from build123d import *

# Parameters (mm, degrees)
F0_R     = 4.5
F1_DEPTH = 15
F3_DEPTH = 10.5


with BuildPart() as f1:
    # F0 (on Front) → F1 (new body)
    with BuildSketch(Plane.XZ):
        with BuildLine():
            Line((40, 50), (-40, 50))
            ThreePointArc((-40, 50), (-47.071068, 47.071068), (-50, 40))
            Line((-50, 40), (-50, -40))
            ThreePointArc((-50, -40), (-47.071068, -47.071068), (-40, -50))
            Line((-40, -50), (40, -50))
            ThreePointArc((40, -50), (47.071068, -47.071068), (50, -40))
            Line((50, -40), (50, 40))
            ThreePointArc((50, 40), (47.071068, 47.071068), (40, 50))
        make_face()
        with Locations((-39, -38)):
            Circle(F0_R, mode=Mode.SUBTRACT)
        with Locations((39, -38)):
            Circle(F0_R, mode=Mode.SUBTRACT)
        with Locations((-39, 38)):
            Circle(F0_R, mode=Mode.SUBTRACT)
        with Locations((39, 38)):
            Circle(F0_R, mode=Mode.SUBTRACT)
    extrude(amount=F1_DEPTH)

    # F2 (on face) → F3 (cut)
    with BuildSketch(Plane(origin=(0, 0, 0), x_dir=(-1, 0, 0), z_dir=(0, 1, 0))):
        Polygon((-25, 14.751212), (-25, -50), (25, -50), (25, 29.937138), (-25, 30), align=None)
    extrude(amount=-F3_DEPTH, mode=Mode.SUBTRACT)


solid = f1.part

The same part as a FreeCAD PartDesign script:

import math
import FreeCAD as App
import Part
import Sketcher
from FreeCAD import Vector


def add_polygon(sketch, points):
    """Adds a closed chain of lines whose ends are joined by coincident constraints."""
    first, n = sketch.GeometryCount, len(points)
    for a, b in zip(points, points[1:] + points[:1]):
        sketch.addGeometry(Part.LineSegment(App.Vector(*a, 0), App.Vector(*b, 0)), False)
    for i in range(n):
        sketch.addConstraint(Sketcher.Constraint("Coincident", first + i, 2, first + (i + 1) % n, 1))

doc = App.newDocument("Part")
params = doc.addObject("Spreadsheet::Sheet", "Params")
for row, (alias, value) in enumerate([
    ("sketch1_diameter", "9 mm"),
    ("sketch1_radius", "9.999999 mm"),
    ("sketch1_width", "80 mm"),
    ("pad1_length", "15 mm"),
    ("sketch2_width", "50 mm"),
    ("sketch2_height", "80 mm"),
    ("pocket1_length", "10.5 mm"),
], start=1):
    params.set(f"A{row}", alias)
    params.set(f"B{row}", "=" + value)
    params.setAlias(f"B{row}", alias)

body = doc.addObject("PartDesign::Body", "Body")

# Sketch on XZ plane
sketch1 = body.newObject("Sketcher::SketchObject", "Sketch")
sketch1.AttachmentSupport = (doc.getObject("XZ_Plane"), [""])
sketch1.MapMode = "FlatFace"
sketch1.addGeometry([
    Part.LineSegment(Vector(40, 50, 0), Vector(-40, 50, 0)),  # 0
    Part.ArcOfCircle(Part.Circle(Vector(-40, 40, 0), Vector(0, 0, 1), 10), math.radians(90), math.radians(180)),  # 1
    Part.LineSegment(Vector(-50, 40, 0), Vector(-50, -40, 0)),  # 2
    Part.ArcOfCircle(Part.Circle(Vector(-40, -40, 0), Vector(0, 0, 1), 10), math.radians(180), math.radians(270)),  # 3
    Part.LineSegment(Vector(-40, -50, 0), Vector(40, -50, 0)),  # 4
    Part.ArcOfCircle(Part.Circle(Vector(40, -40, 0), Vector(0, 0, 1), 10), math.radians(-90), math.radians(0)),  # 5
    Part.LineSegment(Vector(50, -40, 0), Vector(50, 40, 0)),  # 6
    Part.ArcOfCircle(Part.Circle(Vector(40, 40, 0), Vector(0, 0, 1), 10), math.radians(0), math.radians(90)),  # 7
    Part.Circle(Vector(-39, -38, 0), Vector(0, 0, 1), 4.5),  # 8
    Part.Circle(Vector(39, -38, 0), Vector(0, 0, 1), 4.5),  # 9
    Part.Circle(Vector(-39, 38, 0), Vector(0, 0, 1), 4.5),  # 10
    Part.Circle(Vector(39, 38, 0), Vector(0, 0, 1), 4.5),  # 11
], False)
sketch1.addConstraint([
    Sketcher.Constraint("Tangent", 0, 2, 1, 1),
    Sketcher.Constraint("Tangent", 1, 2, 2, 1),
    Sketcher.Constraint("Tangent", 2, 2, 3, 1),
    Sketcher.Constraint("Tangent", 3, 2, 4, 1),
    Sketcher.Constraint("Tangent", 4, 2, 5, 1),
    Sketcher.Constraint("Tangent", 5, 2, 6, 1),
    Sketcher.Constraint("Tangent", 6, 2, 7, 1),
    Sketcher.Constraint("Tangent", 7, 2, 0, 1),
    Sketcher.Constraint("Horizontal", 0),
    Sketcher.Constraint("Vertical", 2),
    Sketcher.Constraint("Horizontal", 4),
    Sketcher.Constraint("Vertical", 6),
    Sketcher.Constraint("Equal", 1, 3),
    Sketcher.Constraint("Equal", 3, 5),
    Sketcher.Constraint("Equal", 5, 7),
    Sketcher.Constraint("Equal", 8, 9),
    Sketcher.Constraint("Equal", 9, 10),
    Sketcher.Constraint("Equal", 10, 11),
    Sketcher.Constraint("Symmetric", 1, 3, 5, 3, -1, 1),
    Sketcher.Constraint("Symmetric", 9, 3, 10, 3, -1, 1),
    Sketcher.Constraint("Symmetric", 8, 3, 11, 3, -1, 1),
    Sketcher.Constraint("Symmetric", 8, 3, 9, 3, -2),
    Sketcher.Constraint("Equal", 4, 2),
    Sketcher.Constraint("Diameter", 8, 9.0),
    Sketcher.Constraint("Radius", 1, 9.999999),
    Sketcher.Constraint("DistanceX", 0, 2, 0, 1, 80.0),
    Sketcher.Constraint("DistanceX", 8, 3, -1, 1, 39.0),
    Sketcher.Constraint("DistanceY", 8, 3, -1, 1, 38.0),
])
sketch1.setExpression("Constraints[23]", "Params.sketch1_diameter")
sketch1.setExpression("Constraints[24]", "Params.sketch1_radius")
sketch1.setExpression("Constraints[25]", "Params.sketch1_width")
pad1 = body.newObject("PartDesign::Pad", "Pad")
pad1.Profile = sketch1
pad1.setExpression("Length", "Params.pad1_length")

# Sketch on XZ plane
sketch2 = body.newObject("Sketcher::SketchObject", "Sketch001")
sketch2.AttachmentSupport = (doc.getObject("XZ_Plane"), [""])
sketch2.MapMode = "FlatFace"
add_polygon(sketch2, [(25, -50), (-25, -50), (-25, 30), (25, 30)])  # lines 0-3
sketch2.addConstraint([
    Sketcher.Constraint("Horizontal", 0),
    Sketcher.Constraint("Vertical", 1),
    Sketcher.Constraint("Vertical", 3),
    Sketcher.Constraint("DistanceX", 0, 2, 0, 1, 50.0),
    Sketcher.Constraint("DistanceY", 3, 2, 3, 1, 80.0),
    Sketcher.Constraint("DistanceX", 0, 2, -1, 1, 25.0),
    Sketcher.Constraint("DistanceY", 0, 2, -1, 1, 50.0),
    Sketcher.Constraint("DistanceY", 1, 1, 1, 2, 79.937138),
])
sketch2.setExpression("Constraints[7]", "Params.sketch2_width")
sketch2.setExpression("Constraints[8]", "Params.sketch2_height")
pocket1 = body.newObject("PartDesign::Pocket", "Pocket")
pocket1.Profile = sketch2
pocket1.setExpression("Length", "Params.pocket1_length")
pocket1.Reversed = True

doc.recompute()
